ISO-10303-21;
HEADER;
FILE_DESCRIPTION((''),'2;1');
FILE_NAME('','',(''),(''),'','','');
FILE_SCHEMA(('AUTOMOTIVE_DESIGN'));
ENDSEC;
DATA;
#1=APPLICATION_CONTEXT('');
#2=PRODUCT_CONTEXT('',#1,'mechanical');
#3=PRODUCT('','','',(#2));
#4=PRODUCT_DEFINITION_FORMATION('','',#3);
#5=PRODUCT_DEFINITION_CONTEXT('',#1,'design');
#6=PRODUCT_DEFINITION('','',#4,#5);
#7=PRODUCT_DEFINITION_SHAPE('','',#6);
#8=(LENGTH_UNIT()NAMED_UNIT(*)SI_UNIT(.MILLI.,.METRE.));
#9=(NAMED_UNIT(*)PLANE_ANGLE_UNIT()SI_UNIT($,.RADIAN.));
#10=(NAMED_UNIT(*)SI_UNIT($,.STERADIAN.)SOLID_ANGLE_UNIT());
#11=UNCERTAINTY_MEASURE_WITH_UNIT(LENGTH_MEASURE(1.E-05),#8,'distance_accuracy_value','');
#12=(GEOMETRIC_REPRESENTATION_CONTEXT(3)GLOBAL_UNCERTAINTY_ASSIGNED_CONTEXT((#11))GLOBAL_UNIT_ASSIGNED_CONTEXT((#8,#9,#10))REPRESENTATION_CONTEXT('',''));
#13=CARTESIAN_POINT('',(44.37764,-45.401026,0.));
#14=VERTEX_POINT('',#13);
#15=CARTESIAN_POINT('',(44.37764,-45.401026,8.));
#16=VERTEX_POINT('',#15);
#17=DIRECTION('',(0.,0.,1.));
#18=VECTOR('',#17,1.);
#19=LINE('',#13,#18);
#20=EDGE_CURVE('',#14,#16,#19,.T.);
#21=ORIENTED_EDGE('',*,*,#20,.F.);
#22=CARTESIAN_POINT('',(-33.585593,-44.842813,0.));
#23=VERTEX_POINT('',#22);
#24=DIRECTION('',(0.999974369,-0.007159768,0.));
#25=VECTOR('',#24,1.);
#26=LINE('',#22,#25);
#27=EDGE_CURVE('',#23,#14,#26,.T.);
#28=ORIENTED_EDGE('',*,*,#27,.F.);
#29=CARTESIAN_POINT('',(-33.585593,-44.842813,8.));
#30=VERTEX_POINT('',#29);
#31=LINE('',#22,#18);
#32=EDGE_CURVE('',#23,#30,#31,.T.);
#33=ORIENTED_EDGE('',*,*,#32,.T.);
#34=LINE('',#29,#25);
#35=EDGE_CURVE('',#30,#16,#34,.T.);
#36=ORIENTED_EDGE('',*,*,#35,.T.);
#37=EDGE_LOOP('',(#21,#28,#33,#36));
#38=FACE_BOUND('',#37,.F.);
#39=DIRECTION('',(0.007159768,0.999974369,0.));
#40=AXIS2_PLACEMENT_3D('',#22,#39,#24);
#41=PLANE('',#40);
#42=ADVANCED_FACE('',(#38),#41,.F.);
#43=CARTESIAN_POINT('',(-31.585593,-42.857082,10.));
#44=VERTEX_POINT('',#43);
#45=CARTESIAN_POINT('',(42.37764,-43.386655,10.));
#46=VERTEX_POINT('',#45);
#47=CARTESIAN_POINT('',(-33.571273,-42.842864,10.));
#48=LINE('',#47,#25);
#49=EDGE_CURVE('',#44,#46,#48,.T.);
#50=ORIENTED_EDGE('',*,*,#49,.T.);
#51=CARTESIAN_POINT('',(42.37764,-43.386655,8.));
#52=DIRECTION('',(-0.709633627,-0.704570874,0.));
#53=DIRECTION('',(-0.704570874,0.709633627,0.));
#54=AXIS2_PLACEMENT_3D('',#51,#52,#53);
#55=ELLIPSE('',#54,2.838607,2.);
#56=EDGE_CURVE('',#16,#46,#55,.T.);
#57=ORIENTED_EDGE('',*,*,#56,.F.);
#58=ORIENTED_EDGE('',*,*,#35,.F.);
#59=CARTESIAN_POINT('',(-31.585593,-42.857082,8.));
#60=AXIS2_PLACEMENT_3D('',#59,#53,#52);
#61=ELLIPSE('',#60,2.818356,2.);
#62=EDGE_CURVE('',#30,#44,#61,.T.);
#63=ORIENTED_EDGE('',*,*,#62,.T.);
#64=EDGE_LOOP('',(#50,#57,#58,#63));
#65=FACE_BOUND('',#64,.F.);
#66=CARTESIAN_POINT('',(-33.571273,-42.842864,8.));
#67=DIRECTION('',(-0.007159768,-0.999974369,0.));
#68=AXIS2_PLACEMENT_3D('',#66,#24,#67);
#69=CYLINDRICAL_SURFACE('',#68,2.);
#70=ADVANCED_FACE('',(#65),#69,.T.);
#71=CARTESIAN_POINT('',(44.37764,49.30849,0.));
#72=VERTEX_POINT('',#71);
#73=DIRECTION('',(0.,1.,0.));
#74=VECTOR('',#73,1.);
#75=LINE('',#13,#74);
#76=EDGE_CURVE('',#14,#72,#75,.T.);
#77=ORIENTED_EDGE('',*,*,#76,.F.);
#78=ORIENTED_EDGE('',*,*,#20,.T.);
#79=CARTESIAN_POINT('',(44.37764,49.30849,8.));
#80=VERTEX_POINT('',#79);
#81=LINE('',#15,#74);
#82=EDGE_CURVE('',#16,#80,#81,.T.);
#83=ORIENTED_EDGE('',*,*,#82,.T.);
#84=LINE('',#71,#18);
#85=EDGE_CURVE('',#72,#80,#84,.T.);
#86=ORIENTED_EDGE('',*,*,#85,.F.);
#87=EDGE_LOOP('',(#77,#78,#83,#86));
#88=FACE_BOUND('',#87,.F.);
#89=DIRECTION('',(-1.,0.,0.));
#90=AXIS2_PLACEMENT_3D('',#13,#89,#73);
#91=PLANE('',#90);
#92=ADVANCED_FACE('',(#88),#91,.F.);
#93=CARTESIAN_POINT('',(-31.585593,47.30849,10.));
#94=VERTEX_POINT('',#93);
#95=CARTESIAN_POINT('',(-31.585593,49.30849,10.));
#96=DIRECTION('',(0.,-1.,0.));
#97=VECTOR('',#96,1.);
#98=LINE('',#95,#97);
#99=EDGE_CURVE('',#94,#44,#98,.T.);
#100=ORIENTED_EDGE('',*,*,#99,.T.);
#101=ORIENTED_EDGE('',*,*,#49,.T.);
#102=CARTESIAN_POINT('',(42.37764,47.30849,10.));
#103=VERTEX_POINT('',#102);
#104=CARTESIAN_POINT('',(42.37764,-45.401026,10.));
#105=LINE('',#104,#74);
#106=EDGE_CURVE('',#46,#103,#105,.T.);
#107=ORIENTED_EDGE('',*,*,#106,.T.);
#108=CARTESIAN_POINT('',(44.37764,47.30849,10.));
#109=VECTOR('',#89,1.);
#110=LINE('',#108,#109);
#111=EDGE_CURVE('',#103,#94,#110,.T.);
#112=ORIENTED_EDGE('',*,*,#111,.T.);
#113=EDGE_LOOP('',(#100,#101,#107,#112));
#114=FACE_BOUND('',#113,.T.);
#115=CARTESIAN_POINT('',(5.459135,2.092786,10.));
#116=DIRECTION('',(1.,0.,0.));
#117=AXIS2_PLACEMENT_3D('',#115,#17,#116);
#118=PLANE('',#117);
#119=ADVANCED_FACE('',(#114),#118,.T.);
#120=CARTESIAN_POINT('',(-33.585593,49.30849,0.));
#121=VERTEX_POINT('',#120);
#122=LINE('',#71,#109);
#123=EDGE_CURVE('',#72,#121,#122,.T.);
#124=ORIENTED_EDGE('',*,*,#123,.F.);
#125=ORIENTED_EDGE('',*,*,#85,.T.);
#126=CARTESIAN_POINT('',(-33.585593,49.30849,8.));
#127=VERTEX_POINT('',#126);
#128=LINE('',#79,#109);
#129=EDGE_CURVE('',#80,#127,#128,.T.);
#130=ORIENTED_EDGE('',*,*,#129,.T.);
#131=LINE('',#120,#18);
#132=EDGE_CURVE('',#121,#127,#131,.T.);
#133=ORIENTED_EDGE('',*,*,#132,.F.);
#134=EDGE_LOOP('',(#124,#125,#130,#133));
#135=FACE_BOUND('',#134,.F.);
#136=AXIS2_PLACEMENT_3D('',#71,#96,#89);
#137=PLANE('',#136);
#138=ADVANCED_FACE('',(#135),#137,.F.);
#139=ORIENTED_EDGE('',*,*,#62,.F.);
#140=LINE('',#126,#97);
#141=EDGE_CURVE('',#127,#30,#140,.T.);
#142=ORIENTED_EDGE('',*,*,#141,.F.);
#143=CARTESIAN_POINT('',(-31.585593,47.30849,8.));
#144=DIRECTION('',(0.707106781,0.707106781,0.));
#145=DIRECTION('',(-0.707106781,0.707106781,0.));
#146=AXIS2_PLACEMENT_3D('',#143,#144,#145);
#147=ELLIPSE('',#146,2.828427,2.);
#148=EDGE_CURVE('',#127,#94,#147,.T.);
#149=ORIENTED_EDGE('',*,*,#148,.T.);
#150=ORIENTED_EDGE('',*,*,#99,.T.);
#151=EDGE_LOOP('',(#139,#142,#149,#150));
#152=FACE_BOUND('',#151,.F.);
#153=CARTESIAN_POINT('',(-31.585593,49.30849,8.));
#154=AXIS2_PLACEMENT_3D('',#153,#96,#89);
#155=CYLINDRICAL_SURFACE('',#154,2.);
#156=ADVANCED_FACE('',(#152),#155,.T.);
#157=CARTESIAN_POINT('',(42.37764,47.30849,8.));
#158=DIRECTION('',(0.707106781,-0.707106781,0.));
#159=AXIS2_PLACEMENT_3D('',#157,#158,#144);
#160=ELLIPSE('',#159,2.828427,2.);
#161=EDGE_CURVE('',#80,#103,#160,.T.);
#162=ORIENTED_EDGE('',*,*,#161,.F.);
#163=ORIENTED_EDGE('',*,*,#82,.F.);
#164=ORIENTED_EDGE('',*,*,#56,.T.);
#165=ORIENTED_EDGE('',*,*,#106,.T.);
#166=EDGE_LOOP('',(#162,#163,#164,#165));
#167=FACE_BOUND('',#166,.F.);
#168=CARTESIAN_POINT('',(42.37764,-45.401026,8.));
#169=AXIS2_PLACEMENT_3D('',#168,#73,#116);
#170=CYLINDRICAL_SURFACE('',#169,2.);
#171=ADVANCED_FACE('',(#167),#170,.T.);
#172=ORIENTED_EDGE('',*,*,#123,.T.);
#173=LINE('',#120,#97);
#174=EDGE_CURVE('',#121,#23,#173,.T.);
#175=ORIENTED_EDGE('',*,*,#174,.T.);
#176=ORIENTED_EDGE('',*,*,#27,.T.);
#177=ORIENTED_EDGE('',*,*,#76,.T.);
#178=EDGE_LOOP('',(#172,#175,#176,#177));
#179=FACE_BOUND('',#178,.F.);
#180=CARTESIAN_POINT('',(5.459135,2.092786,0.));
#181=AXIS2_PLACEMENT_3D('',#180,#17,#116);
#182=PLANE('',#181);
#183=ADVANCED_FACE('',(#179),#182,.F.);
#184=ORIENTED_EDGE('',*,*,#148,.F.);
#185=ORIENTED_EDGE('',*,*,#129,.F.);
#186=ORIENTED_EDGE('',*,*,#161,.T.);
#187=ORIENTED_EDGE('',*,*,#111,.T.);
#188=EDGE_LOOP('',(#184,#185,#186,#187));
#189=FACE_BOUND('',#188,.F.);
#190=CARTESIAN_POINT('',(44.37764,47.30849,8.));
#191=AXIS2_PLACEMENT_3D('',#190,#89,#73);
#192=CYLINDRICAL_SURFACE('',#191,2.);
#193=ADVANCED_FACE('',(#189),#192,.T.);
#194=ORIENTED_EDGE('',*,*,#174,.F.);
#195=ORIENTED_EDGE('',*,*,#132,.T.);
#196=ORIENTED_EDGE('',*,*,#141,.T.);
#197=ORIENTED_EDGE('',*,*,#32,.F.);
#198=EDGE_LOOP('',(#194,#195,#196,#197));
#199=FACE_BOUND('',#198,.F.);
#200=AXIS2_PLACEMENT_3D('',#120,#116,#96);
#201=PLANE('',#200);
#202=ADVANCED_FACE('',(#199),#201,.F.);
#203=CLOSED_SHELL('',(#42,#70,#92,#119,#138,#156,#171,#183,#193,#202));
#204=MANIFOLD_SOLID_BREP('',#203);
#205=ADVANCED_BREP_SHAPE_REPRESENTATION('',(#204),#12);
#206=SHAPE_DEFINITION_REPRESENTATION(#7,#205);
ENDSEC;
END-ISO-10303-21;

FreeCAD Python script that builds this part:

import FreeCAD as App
import Part
import Sketcher

V = App.Vector


def edges_at(feature, points):
    """Names of the edges that pass closest to the given points."""
    edges = feature.Shape.Edges
    near = lambda p: min(range(len(edges)), key=lambda i: edges[i].distToShape(Part.Vertex(*p))[0])
    return sorted({f"Edge{near(p) + 1}" for p in points})


def add_polygon(sketch, points):
    """Adds a closed chain of lines whose ends are joined by coincident constraints."""
    first, n = sketch.GeometryCount, len(points)
    for a, b in zip(points, points[1:] + points[:1]):
        sketch.addGeometry(Part.LineSegment(App.Vector(*a, 0), App.Vector(*b, 0)), False)
    for i in range(n):
        sketch.addConstraint(Sketcher.Constraint("Coincident", first + i, 2, first + (i + 1) % n, 1))

doc = App.newDocument("Part")
params = doc.addObject("Spreadsheet::Sheet", "Params")
for row, (alias, value) in enumerate([
    ("pad1_length", "10 mm"),
    ("fillet_radius", "2 mm"),
], start=1):
    params.set(f"A{row}", alias)
    params.set(f"B{row}", "=" + value)
    params.setAlias(f"B{row}", alias)

body = doc.addObject("PartDesign::Body", "Body")

# Sketch on XY plane
sketch1 = body.newObject("Sketcher::SketchObject", "Sketch")
sketch1.AttachmentSupport = (doc.getObject("XY_Plane"), [""])
sketch1.MapMode = "FlatFace"
add_polygon(sketch1, [(-33.585593, 49.30849), (-33.585593, -44.842813), (44.37764, -45.401026), (44.37764, 49.30849)])  # lines 0-3
sketch1.addConstraint([
    Sketcher.Constraint("Vertical", 0),
    Sketcher.Constraint("Vertical", 2),
    Sketcher.Constraint("Horizontal", 3),
    Sketcher.Constraint("Distance", 1, 77.965231),
    Sketcher.Constraint("DistanceX", 3, 2, 3, 1, 77.963233),
    Sketcher.Constraint("DistanceY", 0, 2, 0, 1, 94.151303),
    Sketcher.Constraint("DistanceX", -1, 1, 1, 2, 44.37764),
    Sketcher.Constraint("DistanceY", -1, 1, 2, 2, 49.30849),
])
pad1 = body.newObject("PartDesign::Pad", "Pad")
pad1.Profile = sketch1
pad1.setExpression("Length", "Params.pad1_length")
doc.recompute()

fillet = body.newObject("PartDesign::Fillet", "Fillet")
fillet.Base = (pad1, edges_at(pad1, [
    (44.378, 1.954, 10),
    (5.396, 49.308, 10),
    (-33.586, 2.233, 10),
    (5.396, -45.122, 10),
]))
fillet.setExpression("Radius", "Params.fillet_radius")

doc.recompute()
